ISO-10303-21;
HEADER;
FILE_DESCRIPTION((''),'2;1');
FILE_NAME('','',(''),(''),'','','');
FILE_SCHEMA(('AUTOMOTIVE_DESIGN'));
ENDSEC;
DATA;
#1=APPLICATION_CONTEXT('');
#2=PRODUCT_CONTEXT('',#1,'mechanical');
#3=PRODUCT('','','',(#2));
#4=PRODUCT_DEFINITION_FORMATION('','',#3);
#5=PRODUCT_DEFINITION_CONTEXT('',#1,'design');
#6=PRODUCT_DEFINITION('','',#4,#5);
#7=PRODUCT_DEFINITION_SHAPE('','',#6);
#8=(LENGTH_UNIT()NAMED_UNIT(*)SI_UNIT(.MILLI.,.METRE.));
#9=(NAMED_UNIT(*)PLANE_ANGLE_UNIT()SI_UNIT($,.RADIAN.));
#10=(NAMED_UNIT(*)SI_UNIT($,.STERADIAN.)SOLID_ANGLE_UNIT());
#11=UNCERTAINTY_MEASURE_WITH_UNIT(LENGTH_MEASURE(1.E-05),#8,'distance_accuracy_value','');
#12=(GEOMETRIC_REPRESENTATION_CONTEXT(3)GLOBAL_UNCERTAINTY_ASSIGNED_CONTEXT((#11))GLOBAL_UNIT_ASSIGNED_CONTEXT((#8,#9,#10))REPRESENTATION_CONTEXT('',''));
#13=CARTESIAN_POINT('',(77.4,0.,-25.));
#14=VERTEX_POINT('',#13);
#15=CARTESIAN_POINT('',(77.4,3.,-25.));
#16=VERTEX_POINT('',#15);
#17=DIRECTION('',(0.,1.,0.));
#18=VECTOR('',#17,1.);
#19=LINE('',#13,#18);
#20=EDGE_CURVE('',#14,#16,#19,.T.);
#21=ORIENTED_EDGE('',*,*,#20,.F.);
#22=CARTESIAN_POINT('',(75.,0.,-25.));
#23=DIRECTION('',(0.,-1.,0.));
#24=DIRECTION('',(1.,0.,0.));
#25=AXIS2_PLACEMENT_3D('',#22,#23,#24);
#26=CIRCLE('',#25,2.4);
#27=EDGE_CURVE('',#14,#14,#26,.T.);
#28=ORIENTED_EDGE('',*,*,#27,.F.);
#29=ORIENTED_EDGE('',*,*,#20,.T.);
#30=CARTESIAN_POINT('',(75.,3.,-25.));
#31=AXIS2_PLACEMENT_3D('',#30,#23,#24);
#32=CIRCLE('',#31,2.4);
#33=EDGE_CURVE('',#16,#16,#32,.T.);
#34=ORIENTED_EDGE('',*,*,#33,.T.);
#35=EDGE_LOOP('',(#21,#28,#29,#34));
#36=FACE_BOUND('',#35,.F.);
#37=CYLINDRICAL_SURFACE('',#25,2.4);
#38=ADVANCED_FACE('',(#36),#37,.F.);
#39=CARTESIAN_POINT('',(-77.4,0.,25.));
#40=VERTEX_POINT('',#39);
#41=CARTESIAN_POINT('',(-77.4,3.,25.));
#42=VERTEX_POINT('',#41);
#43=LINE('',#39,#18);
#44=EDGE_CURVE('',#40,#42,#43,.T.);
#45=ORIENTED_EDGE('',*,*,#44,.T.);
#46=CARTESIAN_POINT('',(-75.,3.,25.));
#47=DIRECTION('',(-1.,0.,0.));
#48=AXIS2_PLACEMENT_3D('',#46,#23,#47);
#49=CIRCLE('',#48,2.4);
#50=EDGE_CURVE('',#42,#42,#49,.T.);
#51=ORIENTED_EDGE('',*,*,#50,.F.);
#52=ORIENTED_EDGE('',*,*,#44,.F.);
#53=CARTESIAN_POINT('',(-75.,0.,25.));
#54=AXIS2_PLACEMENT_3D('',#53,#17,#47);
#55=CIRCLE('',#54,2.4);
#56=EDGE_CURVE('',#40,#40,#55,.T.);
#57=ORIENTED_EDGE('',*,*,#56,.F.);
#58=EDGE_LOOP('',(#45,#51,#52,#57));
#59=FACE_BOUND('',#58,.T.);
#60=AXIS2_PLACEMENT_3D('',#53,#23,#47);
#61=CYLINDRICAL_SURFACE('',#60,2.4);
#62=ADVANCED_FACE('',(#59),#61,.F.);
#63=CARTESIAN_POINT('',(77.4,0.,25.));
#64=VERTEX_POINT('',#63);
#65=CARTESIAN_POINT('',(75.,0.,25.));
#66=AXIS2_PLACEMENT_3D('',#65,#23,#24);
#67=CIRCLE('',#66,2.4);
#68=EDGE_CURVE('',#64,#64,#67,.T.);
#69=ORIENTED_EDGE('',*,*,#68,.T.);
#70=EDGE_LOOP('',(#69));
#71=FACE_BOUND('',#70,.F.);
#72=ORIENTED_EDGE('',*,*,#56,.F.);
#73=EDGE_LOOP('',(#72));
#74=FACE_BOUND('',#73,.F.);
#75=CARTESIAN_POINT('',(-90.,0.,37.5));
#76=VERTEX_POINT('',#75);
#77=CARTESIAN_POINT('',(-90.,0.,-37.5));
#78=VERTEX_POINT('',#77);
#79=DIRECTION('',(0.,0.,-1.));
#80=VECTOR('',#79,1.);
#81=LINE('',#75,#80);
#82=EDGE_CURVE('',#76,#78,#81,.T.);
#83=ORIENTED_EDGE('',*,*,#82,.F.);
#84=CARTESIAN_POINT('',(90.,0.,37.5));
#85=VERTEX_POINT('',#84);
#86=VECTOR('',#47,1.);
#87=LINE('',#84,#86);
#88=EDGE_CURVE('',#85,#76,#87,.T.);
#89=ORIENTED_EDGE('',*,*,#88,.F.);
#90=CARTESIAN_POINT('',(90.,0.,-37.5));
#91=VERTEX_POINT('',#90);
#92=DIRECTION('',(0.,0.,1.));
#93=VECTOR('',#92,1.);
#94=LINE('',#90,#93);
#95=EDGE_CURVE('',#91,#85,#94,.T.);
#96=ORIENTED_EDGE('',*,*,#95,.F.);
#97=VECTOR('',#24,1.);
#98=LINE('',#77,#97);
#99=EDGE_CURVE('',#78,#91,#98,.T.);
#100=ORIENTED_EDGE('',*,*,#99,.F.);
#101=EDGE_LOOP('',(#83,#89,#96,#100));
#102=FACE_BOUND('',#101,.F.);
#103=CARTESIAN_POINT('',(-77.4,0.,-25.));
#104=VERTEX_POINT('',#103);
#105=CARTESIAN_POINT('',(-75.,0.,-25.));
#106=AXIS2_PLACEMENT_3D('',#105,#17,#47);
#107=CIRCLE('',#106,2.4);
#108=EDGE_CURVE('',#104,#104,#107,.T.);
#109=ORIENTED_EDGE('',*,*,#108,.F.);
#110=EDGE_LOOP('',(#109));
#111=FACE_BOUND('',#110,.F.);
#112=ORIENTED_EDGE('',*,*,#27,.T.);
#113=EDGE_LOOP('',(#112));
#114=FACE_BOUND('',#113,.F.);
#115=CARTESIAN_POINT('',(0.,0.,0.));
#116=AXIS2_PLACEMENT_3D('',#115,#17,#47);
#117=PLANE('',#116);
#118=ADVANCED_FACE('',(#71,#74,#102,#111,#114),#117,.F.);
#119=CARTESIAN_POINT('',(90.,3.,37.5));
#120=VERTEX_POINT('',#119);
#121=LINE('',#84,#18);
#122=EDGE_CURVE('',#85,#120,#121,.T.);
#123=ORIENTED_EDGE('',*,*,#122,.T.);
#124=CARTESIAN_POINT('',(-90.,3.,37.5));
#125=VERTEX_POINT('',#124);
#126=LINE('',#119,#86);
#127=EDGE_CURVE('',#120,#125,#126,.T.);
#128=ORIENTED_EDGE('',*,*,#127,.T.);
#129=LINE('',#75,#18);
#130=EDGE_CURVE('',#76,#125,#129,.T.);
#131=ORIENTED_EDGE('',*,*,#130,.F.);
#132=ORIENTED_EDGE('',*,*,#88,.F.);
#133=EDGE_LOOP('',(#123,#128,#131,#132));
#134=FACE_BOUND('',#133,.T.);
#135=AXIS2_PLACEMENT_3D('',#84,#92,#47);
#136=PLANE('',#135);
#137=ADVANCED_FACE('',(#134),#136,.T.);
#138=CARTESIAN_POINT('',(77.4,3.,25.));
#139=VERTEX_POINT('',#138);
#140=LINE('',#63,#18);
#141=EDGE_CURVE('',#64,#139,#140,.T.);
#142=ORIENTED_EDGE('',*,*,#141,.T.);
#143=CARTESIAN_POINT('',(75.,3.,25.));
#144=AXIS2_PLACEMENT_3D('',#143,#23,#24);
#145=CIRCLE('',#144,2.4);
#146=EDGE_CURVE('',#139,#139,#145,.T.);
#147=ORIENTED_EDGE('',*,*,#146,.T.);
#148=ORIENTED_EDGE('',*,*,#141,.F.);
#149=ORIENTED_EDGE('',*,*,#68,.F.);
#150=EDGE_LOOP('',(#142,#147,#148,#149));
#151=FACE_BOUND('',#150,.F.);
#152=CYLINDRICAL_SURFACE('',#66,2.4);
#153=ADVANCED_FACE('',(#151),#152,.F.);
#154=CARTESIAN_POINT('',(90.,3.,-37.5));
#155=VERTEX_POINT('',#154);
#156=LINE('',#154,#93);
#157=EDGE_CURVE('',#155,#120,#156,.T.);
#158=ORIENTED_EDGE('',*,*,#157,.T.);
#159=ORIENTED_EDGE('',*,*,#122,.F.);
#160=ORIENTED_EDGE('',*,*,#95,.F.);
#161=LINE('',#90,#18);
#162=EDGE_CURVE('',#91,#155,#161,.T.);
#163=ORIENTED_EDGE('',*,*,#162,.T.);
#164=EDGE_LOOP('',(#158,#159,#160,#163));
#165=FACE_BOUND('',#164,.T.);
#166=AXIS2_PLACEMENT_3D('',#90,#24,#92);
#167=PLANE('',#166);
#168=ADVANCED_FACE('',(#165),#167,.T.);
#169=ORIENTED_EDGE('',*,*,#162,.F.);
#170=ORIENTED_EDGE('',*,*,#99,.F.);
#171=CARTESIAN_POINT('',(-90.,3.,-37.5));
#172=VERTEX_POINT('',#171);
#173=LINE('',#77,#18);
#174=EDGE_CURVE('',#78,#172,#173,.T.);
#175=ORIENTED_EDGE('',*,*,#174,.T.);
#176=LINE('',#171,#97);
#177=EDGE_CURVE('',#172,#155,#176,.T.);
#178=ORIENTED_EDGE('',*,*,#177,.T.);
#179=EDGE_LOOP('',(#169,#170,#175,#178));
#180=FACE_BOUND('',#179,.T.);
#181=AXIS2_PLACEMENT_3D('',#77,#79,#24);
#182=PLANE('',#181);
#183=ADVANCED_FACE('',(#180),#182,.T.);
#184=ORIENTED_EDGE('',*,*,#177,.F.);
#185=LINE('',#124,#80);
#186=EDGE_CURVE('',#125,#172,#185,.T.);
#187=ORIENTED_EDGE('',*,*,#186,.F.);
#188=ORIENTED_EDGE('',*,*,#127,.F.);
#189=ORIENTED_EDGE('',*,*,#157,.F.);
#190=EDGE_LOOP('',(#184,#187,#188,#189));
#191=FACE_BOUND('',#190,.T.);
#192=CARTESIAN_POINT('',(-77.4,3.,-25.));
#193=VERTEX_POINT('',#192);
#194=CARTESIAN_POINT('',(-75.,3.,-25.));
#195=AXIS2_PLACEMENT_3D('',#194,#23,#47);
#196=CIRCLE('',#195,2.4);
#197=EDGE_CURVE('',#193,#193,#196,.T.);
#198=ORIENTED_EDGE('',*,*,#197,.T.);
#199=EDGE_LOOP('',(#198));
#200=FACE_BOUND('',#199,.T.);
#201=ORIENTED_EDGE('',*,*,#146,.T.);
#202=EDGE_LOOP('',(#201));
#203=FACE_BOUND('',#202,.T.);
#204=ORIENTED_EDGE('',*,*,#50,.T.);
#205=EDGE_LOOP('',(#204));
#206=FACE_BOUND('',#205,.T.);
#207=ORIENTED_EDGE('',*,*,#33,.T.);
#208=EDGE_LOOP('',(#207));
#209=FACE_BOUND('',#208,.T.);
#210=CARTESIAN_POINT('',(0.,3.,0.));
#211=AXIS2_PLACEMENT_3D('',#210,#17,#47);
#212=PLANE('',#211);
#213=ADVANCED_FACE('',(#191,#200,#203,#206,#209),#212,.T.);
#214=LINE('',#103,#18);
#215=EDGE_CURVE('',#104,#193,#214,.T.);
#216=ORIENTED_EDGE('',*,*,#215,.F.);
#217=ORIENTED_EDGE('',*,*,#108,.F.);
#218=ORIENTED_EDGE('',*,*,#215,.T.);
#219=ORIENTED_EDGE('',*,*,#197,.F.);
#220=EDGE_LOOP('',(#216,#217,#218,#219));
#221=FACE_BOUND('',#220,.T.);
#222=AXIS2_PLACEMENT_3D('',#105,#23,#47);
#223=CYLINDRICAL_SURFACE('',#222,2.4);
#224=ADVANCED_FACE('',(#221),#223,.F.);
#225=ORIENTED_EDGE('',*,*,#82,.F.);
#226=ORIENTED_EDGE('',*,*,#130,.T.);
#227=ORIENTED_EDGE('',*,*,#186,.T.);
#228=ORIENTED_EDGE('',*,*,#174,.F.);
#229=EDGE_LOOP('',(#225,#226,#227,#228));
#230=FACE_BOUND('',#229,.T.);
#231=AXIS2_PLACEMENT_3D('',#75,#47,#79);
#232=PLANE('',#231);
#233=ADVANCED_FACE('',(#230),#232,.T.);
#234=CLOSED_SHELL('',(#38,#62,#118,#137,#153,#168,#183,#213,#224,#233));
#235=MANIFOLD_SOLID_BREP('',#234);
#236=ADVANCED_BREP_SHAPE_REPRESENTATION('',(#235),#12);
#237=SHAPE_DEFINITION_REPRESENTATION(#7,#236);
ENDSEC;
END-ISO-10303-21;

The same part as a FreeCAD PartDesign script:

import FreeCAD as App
import Part
import Sketcher

V = App.Vector
Q = App.Units.Quantity

doc = App.newDocument("Part")
body = doc.addObject("PartDesign::Body", "Body")

# Sketch on XZ plane
sketch1 = body.newObject("Sketcher::SketchObject", "Sketch")
sketch1.AttachmentSupport = (doc.getObject("XZ_Plane"), [""])
sketch1.MapMode = "FlatFace"
sketch1.addGeometry([
    Part.LineSegment(V(-90, 37.5, 0), V(90, 37.5, 0)),
    Part.LineSegment(V(90, 37.5, 0), V(90, -37.5, 0)),
    Part.LineSegment(V(90, -37.5, 0), V(-90, -37.5, 0)),
    Part.LineSegment(V(-90, -37.5, 0), V(-90, 37.5, 0)),
], False)
sketch1.addConstraint([
    Sketcher.Constraint("Coincident", 0, 2, 1, 1),
    Sketcher.Constraint("Coincident", 1, 2, 2, 1),
    Sketcher.Constraint("Coincident", 2, 2, 3, 1),
    Sketcher.Constraint("Coincident", 3, 2, 0, 1),
    Sketcher.Constraint("Horizontal", 0),
    Sketcher.Constraint("Vertical", 1),
    Sketcher.Constraint("Horizontal", 2),
    Sketcher.Constraint("Vertical", 3),
    Sketcher.Constraint("Symmetric", 0, 2, 2, 2, -1, 1),
    Sketcher.Constraint("DistanceX", 0, 1, 0, 2, Q("180 mm")),
    Sketcher.Constraint("DistanceY", 1, 2, 1, 1, Q("75 mm")),
])
pad1 = body.newObject("PartDesign::Pad", "Pad")
pad1.Profile = sketch1
pad1.Length = 3
pad1.Reversed = True

# Sketch on XZ plane
sketch2 = body.newObject("Sketcher::SketchObject", "Sketch001")
sketch2.AttachmentSupport = (doc.getObject("XZ_Plane"), [""])
sketch2.MapMode = "FlatFace"
sketch2.addGeometry([
    Part.Circle(V(75, 25, 0), V(0, 0, 1), 2.4),
    Part.Circle(V(75, -25, 0), V(0, 0, 1), 2.4),
], False)
sketch2.addConstraint([
    Sketcher.Constraint("Equal", 0, 1),
    Sketcher.Constraint("Symmetric", 0, 3, 1, 3, -1),
    Sketcher.Constraint("Diameter", 0, Q("4.8 mm")),
    Sketcher.Constraint("DistanceX", -1, 1, 0, 3, Q("75 mm")),
    Sketcher.Constraint("DistanceY", -1, 1, 0, 3, Q("25 mm")),
])
pocket1 = body.newObject("PartDesign::Pocket", "Pocket")
pocket1.Profile = sketch2
pocket1.Type = "ThroughAll"
doc.recompute()

mirrored = body.newObject("PartDesign::Mirrored", "Mirrored")
mirrored.Originals = [pocket1]
mirrored.MirrorPlane = (doc.getObject("YZ_Plane"), [""])
body.Tip = mirrored

doc.recompute()
